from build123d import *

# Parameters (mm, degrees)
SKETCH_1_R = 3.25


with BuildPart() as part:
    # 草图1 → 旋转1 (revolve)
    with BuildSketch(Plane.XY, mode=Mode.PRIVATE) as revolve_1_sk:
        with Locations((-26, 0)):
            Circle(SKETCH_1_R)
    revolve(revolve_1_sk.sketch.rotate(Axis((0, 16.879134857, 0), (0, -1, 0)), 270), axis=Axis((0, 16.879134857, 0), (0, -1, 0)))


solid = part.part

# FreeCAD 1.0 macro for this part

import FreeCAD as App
import Part
import Sketcher

doc = App.newDocument("Part")
body = doc.addObject("PartDesign::Body", "Body")

# Sketch on XY plane
sketch1 = body.newObject("Sketcher::SketchObject", "Sketch")
sketch1.AttachmentSupport = (doc.getObject("XY_Plane"), [""])
sketch1.MapMode = "FlatFace"
sketch1.addGeometry(Part.Circle(App.Vector(-26, 0, 0), App.Vector(0, 0, 1), 3.2), False)
sketch1.addConstraint(Sketcher.Constraint("PointOnObject", 0, 3, -1))
sketch1.addConstraint(Sketcher.Constraint("Diameter", 0, 6.5))
sketch1.addConstraint(Sketcher.Constraint("DistanceX", 0, 3, -1, 1, 26.0))
revolution = body.newObject("PartDesign::Revolution", "Revolution")
revolution.Profile = sketch1
revolution.ReferenceAxis = (sketch1, ["V_Axis"])
revolution.Angle = 360

doc.recompute()
